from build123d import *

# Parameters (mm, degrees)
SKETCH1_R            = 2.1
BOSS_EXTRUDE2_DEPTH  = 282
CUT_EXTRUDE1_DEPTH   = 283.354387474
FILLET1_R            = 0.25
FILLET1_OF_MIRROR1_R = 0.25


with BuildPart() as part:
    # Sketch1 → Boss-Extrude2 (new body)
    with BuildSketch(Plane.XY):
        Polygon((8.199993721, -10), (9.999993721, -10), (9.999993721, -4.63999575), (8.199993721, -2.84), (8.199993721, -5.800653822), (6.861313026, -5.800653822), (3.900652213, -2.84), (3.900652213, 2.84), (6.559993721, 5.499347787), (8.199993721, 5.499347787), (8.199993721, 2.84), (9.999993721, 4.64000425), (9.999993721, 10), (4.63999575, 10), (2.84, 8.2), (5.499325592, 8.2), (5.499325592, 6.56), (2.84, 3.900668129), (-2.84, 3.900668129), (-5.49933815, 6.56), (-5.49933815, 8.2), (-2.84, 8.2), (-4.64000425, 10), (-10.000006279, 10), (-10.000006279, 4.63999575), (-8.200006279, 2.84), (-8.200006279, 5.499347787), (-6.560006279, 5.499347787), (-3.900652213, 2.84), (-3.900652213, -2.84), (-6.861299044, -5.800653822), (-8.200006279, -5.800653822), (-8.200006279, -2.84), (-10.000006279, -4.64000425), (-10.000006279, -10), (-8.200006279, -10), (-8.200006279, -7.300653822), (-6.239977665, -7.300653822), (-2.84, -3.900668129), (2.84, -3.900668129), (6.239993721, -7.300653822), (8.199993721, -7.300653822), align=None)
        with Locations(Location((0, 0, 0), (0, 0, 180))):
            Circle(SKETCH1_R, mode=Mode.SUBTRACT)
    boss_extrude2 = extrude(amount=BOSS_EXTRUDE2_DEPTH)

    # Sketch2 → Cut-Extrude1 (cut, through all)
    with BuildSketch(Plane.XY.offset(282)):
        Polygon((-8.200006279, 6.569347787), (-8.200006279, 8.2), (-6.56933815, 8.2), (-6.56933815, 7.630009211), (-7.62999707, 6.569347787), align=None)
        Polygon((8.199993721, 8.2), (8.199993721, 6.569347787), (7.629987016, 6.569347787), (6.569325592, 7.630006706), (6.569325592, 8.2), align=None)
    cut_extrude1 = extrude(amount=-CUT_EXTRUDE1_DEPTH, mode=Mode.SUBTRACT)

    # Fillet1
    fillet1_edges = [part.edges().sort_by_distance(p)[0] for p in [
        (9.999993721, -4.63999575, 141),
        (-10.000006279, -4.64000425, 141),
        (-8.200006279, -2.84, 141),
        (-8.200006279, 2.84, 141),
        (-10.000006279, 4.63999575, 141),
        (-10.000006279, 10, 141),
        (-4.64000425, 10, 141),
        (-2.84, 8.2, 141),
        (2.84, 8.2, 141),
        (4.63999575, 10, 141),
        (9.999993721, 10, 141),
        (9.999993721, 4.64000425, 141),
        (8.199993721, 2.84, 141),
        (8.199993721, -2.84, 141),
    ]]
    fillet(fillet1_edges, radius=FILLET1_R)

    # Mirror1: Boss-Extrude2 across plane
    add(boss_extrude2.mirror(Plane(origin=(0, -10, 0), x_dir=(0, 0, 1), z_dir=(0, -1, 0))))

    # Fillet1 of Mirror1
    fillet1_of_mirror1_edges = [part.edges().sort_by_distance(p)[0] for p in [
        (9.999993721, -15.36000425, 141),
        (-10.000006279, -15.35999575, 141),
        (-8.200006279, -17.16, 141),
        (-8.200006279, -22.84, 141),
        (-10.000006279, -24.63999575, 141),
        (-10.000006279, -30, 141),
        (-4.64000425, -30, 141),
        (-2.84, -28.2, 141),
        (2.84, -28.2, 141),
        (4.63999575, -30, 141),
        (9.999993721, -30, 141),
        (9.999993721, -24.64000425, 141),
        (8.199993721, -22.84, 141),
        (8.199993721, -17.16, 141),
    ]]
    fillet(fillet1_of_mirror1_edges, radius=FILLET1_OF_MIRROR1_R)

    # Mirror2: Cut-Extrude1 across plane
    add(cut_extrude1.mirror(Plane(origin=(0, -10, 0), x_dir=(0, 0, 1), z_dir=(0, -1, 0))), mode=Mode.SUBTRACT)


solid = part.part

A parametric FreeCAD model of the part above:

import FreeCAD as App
import Part
import Sketcher
Q = App.Units.Quantity


def edges_at(feature, points):
    """Names of the edges that pass closest to the given points."""
    edges = feature.Shape.Edges
    near = lambda p: min(range(len(edges)), key=lambda i: edges[i].distToShape(Part.Vertex(*p))[0])
    return sorted({f"Edge{near(p) + 1}" for p in points})

doc = App.newDocument("Part")
body = doc.addObject("PartDesign::Body", "Body")

# Sketch on XY plane
sketch1 = body.newObject("Sketcher::SketchObject", "Sketch")
sketch1.AttachmentSupport = (doc.getObject("XY_Plane"), [""])
sketch1.MapMode = "FlatFace"
sketch1.addGeometry([
    Part.LineSegment(App.Vector(8.199994, -10, 0), App.Vector(9.999994, -10, 0)),  # 0
    Part.LineSegment(App.Vector(9.999994, -10, 0), App.Vector(9.999994, -4.639996, 0)),  # 1
    Part.LineSegment(App.Vector(9.999994, -4.639996, 0), App.Vector(8.199994, -2.84, 0)),  # 2
    Part.LineSegment(App.Vector(8.199994, -2.84, 0), App.Vector(8.199994, -5.800654, 0)),  # 3
    Part.LineSegment(App.Vector(8.199994, -5.800654, 0), App.Vector(6.861313, -5.800654, 0)),  # 4
    Part.LineSegment(App.Vector(6.861313, -5.800654, 0), App.Vector(3.900652, -2.84, 0)),  # 5
    Part.LineSegment(App.Vector(3.900652, -2.84, 0), App.Vector(3.900652, 2.84, 0)),  # 6
    Part.LineSegment(App.Vector(3.900652, 2.84, 0), App.Vector(6.559994, 5.499348, 0)),  # 7
    Part.LineSegment(App.Vector(6.559994, 5.499348, 0), App.Vector(8.199994, 5.499348, 0)),  # 8
    Part.LineSegment(App.Vector(8.199994, 5.499348, 0), App.Vector(8.199994, 2.84, 0)),  # 9
    Part.LineSegment(App.Vector(8.199994, 2.84, 0), App.Vector(9.999994, 4.640004, 0)),  # 10
    Part.LineSegment(App.Vector(9.999994, 4.640004, 0), App.Vector(9.999994, 10, 0)),  # 11
    Part.LineSegment(App.Vector(9.999994, 10, 0), App.Vector(4.639996, 10, 0)),  # 12
    Part.LineSegment(App.Vector(4.639996, 10, 0), App.Vector(2.84, 8.2, 0)),  # 13
    Part.LineSegment(App.Vector(2.84, 8.2, 0), App.Vector(5.499326, 8.2, 0)),  # 14
    Part.LineSegment(App.Vector(5.499326, 8.2, 0), App.Vector(5.499326, 6.56, 0)),  # 15
    Part.LineSegment(App.Vector(5.499326, 6.56, 0), App.Vector(2.84, 3.900668, 0)),  # 16
    Part.LineSegment(App.Vector(2.84, 3.900668, 0), App.Vector(-2.84, 3.900668, 0)),  # 17
    Part.LineSegment(App.Vector(-2.84, 3.900668, 0), App.Vector(-5.499338, 6.56, 0)),  # 18
    Part.LineSegment(App.Vector(-5.499338, 6.56, 0), App.Vector(-5.499338, 8.2, 0)),  # 19
    Part.LineSegment(App.Vector(-5.499338, 8.2, 0), App.Vector(-2.84, 8.2, 0)),  # 20
    Part.LineSegment(App.Vector(-2.84, 8.2, 0), App.Vector(-4.640004, 10, 0)),  # 21
    Part.LineSegment(App.Vector(-4.640004, 10, 0), App.Vector(-10.000006, 10, 0)),  # 22
    Part.LineSegment(App.Vector(-10.000006, 10, 0), App.Vector(-10.000006, 4.639996, 0)),  # 23
    Part.LineSegment(App.Vector(-10.000006, 4.639996, 0), App.Vector(-8.200006, 2.84, 0)),  # 24
    Part.LineSegment(App.Vector(-8.200006, 2.84, 0), App.Vector(-8.200006, 5.499348, 0)),  # 25
    Part.LineSegment(App.Vector(-8.200006, 5.499348, 0), App.Vector(-6.560006, 5.499348, 0)),  # 26
    Part.LineSegment(App.Vector(-6.560006, 5.499348, 0), App.Vector(-3.900652, 2.84, 0)),  # 27
    Part.LineSegment(App.Vector(-3.900652, 2.84, 0), App.Vector(-3.900652, -2.84, 0)),  # 28
    Part.LineSegment(App.Vector(-3.900652, -2.84, 0), App.Vector(-6.861299, -5.800654, 0)),  # 29
    Part.LineSegment(App.Vector(-6.861299, -5.800654, 0), App.Vector(-8.200006, -5.800654, 0)),  # 30
    Part.LineSegment(App.Vector(-8.200006, -5.800654, 0), App.Vector(-8.200006, -2.84, 0)),  # 31
    Part.LineSegment(App.Vector(-8.200006, -2.84, 0), App.Vector(-10.000006, -4.640004, 0)),  # 32
    Part.LineSegment(App.Vector(-10.000006, -4.640004, 0), App.Vector(-10.000006, -10, 0)),  # 33
    Part.LineSegment(App.Vector(-10.000006, -10, 0), App.Vector(-8.200006, -10, 0)),  # 34
    Part.LineSegment(App.Vector(-8.200006, -10, 0), App.Vector(-8.200006, -7.300654, 0)),  # 35
    Part.LineSegment(App.Vector(-8.200006, -7.300654, 0), App.Vector(-6.239978, -7.300654, 0)),  # 36
    Part.LineSegment(App.Vector(-6.239978, -7.300654, 0), App.Vector(-2.84, -3.900668, 0)),  # 37
    Part.LineSegment(App.Vector(-2.84, -3.900668, 0), App.Vector(2.84, -3.900668, 0)),  # 38
    Part.LineSegment(App.Vector(2.84, -3.900668, 0), App.Vector(6.239994, -7.300654, 0)),  # 39
    Part.LineSegment(App.Vector(6.239994, -7.300654, 0), App.Vector(8.199994, -7.300654, 0)),  # 40
    Part.LineSegment(App.Vector(8.199994, -7.300654, 0), App.Vector(8.199994, -10, 0)),  # 41
    Part.Circle(App.Vector(0, 0, 0), App.Vector(0, 0, 1), 2.1),  # 42
], False)
sketch1.addConstraint([
    Sketcher.Constraint("Coincident", 0, 2, 1, 1),
    Sketcher.Constraint("Coincident", 1, 2, 2, 1),
    Sketcher.Constraint("Coincident", 2, 2, 3, 1),
    Sketcher.Constraint("Coincident", 3, 2, 4, 1),
    Sketcher.Constraint("Coincident", 4, 2, 5, 1),
    Sketcher.Constraint("Coincident", 5, 2, 6, 1),
    Sketcher.Constraint("Coincident", 6, 2, 7, 1),
    Sketcher.Constraint("Coincident", 7, 2, 8, 1),
    Sketcher.Constraint("Coincident", 8, 2, 9, 1),
    Sketcher.Constraint("Coincident", 9, 2, 10, 1),
    Sketcher.Constraint("Coincident", 10, 2, 11, 1),
    Sketcher.Constraint("Coincident", 11, 2, 12, 1),
    Sketcher.Constraint("Coincident", 12, 2, 13, 1),
    Sketcher.Constraint("Coincident", 13, 2, 14, 1),
    Sketcher.Constraint("Coincident", 14, 2, 15, 1),
    Sketcher.Constraint("Coincident", 15, 2, 16, 1),
    Sketcher.Constraint("Coincident", 16, 2, 17, 1),
    Sketcher.Constraint("Coincident", 17, 2, 18, 1),
    Sketcher.Constraint("Coincident", 18, 2, 19, 1),
    Sketcher.Constraint("Coincident", 19, 2, 20, 1),
    Sketcher.Constraint("Coincident", 20, 2, 21, 1),
    Sketcher.Constraint("Coincident", 21, 2, 22, 1),
    Sketcher.Constraint("Coincident", 22, 2, 23, 1),
    Sketcher.Constraint("Coincident", 23, 2, 24, 1),
    Sketcher.Constraint("Coincident", 24, 2, 25, 1),
    Sketcher.Constraint("Coincident", 25, 2, 26, 1),
    Sketcher.Constraint("Coincident", 26, 2, 27, 1),
    Sketcher.Constraint("Coincident", 27, 2, 28, 1),
    Sketcher.Constraint("Coincident", 28, 2, 29, 1),
    Sketcher.Constraint("Coincident", 29, 2, 30, 1),
    Sketcher.Constraint("Coincident", 30, 2, 31, 1),
    Sketcher.Constraint("Coincident", 31, 2, 32, 1),
    Sketcher.Constraint("Coincident", 32, 2, 33, 1),
    Sketcher.Constraint("Coincident", 33, 2, 34, 1),
    Sketcher.Constraint("Coincident", 34, 2, 35, 1),
    Sketcher.Constraint("Coincident", 35, 2, 36, 1),
    Sketcher.Constraint("Coincident", 36, 2, 37, 1),
    Sketcher.Constraint("Coincident", 37, 2, 38, 1),
    Sketcher.Constraint("Coincident", 38, 2, 39, 1),
    Sketcher.Constraint("Coincident", 39, 2, 40, 1),
    Sketcher.Constraint("Coincident", 40, 2, 41, 1),
    Sketcher.Constraint("Coincident", 41, 2, 0, 1),
    Sketcher.Constraint("Horizontal", 0),
    Sketcher.Constraint("Vertical", 1),
    Sketcher.Constraint("Vertical", 3),
    Sketcher.Constraint("Horizontal", 4),
    Sketcher.Constraint("Vertical", 6),
    Sketcher.Constraint("Horizontal", 8),
    Sketcher.Constraint("Vertical", 9),
    Sketcher.Constraint("Vertical", 11),
    Sketcher.Constraint("Horizontal", 12),
    Sketcher.Constraint("Horizontal", 14),
    Sketcher.Constraint("Vertical", 15),
    Sketcher.Constraint("Horizontal", 17),
    Sketcher.Constraint("Vertical", 19),
    Sketcher.Constraint("Horizontal", 20),
    Sketcher.Constraint("Horizontal", 22),
    Sketcher.Constraint("Vertical", 23),
    Sketcher.Constraint("Vertical", 25),
    Sketcher.Constraint("Horizontal", 26),
    Sketcher.Constraint("Vertical", 28),
    Sketcher.Constraint("Horizontal", 30),
    Sketcher.Constraint("Vertical", 31),
    Sketcher.Constraint("Vertical", 33),
    Sketcher.Constraint("Horizontal", 34),
    Sketcher.Constraint("Vertical", 35),
    Sketcher.Constraint("Horizontal", 36),
    Sketcher.Constraint("Horizontal", 38),
    Sketcher.Constraint("Horizontal", 40),
    Sketcher.Constraint("Vertical", 41),
    Sketcher.Constraint("Coincident", 42, 3, -1, 1),
    Sketcher.Constraint("Diameter", 42, Q("4.2 mm")),
    Sketcher.Constraint("DistanceX", 0, 1, 0, 2, Q("1.8 mm")),
    Sketcher.Constraint("DistanceX", 34, 1, 34, 2, Q("1.8 mm")),
    Sketcher.Constraint("DistanceY", 0, 2, -1, 1, Q("10 mm")),
    Sketcher.Constraint("DistanceY", -1, 1, 11, 2, Q("10 mm")),
    Sketcher.Constraint("DistanceY", -1, 1, 21, 2, Q("10 mm")),
    Sketcher.Constraint("DistanceY", 33, 2, -1, 1, Q("10 mm")),
    Sketcher.Constraint("DistanceX", 8, 1, 8, 2, Q("1.64 mm")),
    Sketcher.Constraint("DistanceX", 17, 2, 17, 1, Q("5.68 mm")),
    Sketcher.Constraint("DistanceX", 26, 1, 26, 2, Q("1.64 mm")),
    Sketcher.Constraint("DistanceX", 38, 1, 38, 2, Q("5.68 mm")),
    Sketcher.Constraint("DistanceX", 40, 1, 40, 2, Q("1.96 mm")),
    Sketcher.Constraint("DistanceY", 6, 1, 6, 2, Q("5.68 mm")),
    Sketcher.Constraint("DistanceY", 15, 2, 15, 1, Q("1.64 mm")),
    Sketcher.Constraint("DistanceY", 19, 1, 19, 2, Q("1.64 mm")),
    Sketcher.Constraint("DistanceY", 28, 2, 28, 1, Q("5.68 mm")),
    Sketcher.Constraint("DistanceY", -1, 1, 13, 2, Q("8.2 mm")),
    Sketcher.Constraint("DistanceY", -1, 1, 19, 2, Q("8.2 mm")),
    Sketcher.Constraint("DistanceX", 2, 2, 1, 2, Q("1.8 mm")),
    Sketcher.Constraint("DistanceX", 8, 2, 10, 2, Q("1.8 mm")),
    Sketcher.Constraint("DistanceX", 2, 2, 10, 2, Q("1.8 mm")),
    Sketcher.Constraint("DistanceX", 23, 2, 24, 2, Q("1.8 mm")),
    Sketcher.Constraint("DistanceX", 32, 2, 30, 2, Q("1.8 mm")),
    Sketcher.Constraint("DistanceX", 32, 2, 24, 2, Q("1.8 mm")),
    Sketcher.Constraint("DistanceY", 35, 2, 30, 2, Q("1.5 mm")),
    Sketcher.Constraint("DistanceY", 39, 2, 4, 2, Q("1.5 mm")),
    Sketcher.Constraint("DistanceY", 2, 2, -1, 1, Q("2.84 mm")),
    Sketcher.Constraint("DistanceY", 5, 2, -1, 1, Q("2.84 mm")),
    Sketcher.Constraint("DistanceY", -1, 1, 9, 2, Q("2.84 mm")),
    Sketcher.Constraint("DistanceX", -1, 1, 13, 2, Q("2.84 mm")),
    Sketcher.Constraint("DistanceX", -1, 1, 16, 2, Q("2.84 mm")),
    Sketcher.Constraint("DistanceX", 20, 2, -1, 1, Q("2.84 mm")),
    Sketcher.Constraint("DistanceY", -1, 1, 24, 2, Q("2.84 mm")),
    Sketcher.Constraint("DistanceY", -1, 1, 27, 2, Q("2.84 mm")),
    Sketcher.Constraint("DistanceY", 31, 2, -1, 1, Q("2.84 mm")),
    Sketcher.Constraint("DistanceX", 37, 2, -1, 1, Q("2.84 mm")),
    Sketcher.Constraint("Distance", 5, Q("4.187002 mm")),
    Sketcher.Constraint("Distance", 37, Q("4.8083 mm")),
    Sketcher.Constraint("DistanceX", 4, 2, 4, 1, Q("1.338681 mm")),
    Sketcher.Constraint("DistanceX", 20, 1, 20, 2, Q("2.659338 mm")),
    Sketcher.Constraint("DistanceX", 36, 1, 36, 2, Q("1.960029 mm")),
    Sketcher.Constraint("DistanceX", 29, 2, -1, 1, Q("6.861299 mm")),
    Sketcher.Constraint("Distance", 2, Q("2.545581 mm")),
    Sketcher.Constraint("Distance", 7, Q("3.760881 mm")),
    Sketcher.Constraint("Distance", 13, Q("2.545581 mm")),
    Sketcher.Constraint("Distance", 16, Q("3.760859 mm")),
    Sketcher.Constraint("Distance", 24, Q("2.545581 mm")),
    Sketcher.Constraint("Distance", 27, Q("3.76089 mm")),
    Sketcher.Constraint("Distance", 29, Q("4.186992 mm")),
    Sketcher.Constraint("Distance", 39, Q("4.808312 mm")),
    Sketcher.Constraint("DistanceX", 12, 2, 12, 1, Q("5.359998 mm")),
    Sketcher.Constraint("DistanceX", 14, 1, 14, 2, Q("2.659326 mm")),
    Sketcher.Constraint("DistanceX", 22, 2, 22, 1, Q("5.360002 mm")),
    Sketcher.Constraint("DistanceX", 30, 2, 30, 1, Q("1.338707 mm")),
    Sketcher.Constraint("DistanceY", 3, 2, 3, 1, Q("2.960654 mm")),
    Sketcher.Constraint("DistanceY", 11, 1, 11, 2, Q("5.359996 mm")),
    Sketcher.Constraint("DistanceY", 33, 2, 33, 1, Q("5.359996 mm")),
])
pad1 = body.newObject("PartDesign::Pad", "Pad")
pad1.Profile = sketch1
pad1.Length = 282

# Sketch on XY plane
sketch2 = body.newObject("Sketcher::SketchObject", "Sketch001")
sketch2.AttachmentSupport = (doc.getObject("XY_Plane"), [""])
sketch2.MapMode = "FlatFace"
sketch2.AttachmentOffset = App.Placement(App.Vector(0, 0, 282), App.Rotation())
sketch2.addGeometry([
    Part.LineSegment(App.Vector(-8.2, 8.2, 0), App.Vector(-8.2, 6.6, 0)),  # 0
    Part.LineSegment(App.Vector(-8.2, 6.6, 0), App.Vector(-7.6, 6.6, 0)),  # 1
    Part.LineSegment(App.Vector(-7.6, 6.6, 0), App.Vector(-6.6, 7.6, 0)),  # 2
    Part.LineSegment(App.Vector(-6.6, 7.6, 0), App.Vector(-6.6, 8.2, 0)),  # 3
    Part.LineSegment(App.Vector(-6.6, 8.2, 0), App.Vector(-8.2, 8.2, 0)),  # 4
    Part.LineSegment(App.Vector(8.2, 6.6, 0), App.Vector(8.2, 8.2, 0)),  # 5
    Part.LineSegment(App.Vector(8.2, 8.2, 0), App.Vector(6.6, 8.2, 0)),  # 6
    Part.LineSegment(App.Vector(6.6, 8.2, 0), App.Vector(6.6, 7.6, 0)),  # 7
    Part.LineSegment(App.Vector(6.6, 7.6, 0), App.Vector(7.6, 6.6, 0)),  # 8
    Part.LineSegment(App.Vector(7.6, 6.6, 0), App.Vector(8.2, 6.6, 0)),  # 9
], False)
sketch2.addConstraint([
    Sketcher.Constraint("Coincident", 0, 2, 1, 1),
    Sketcher.Constraint("Coincident", 1, 2, 2, 1),
    Sketcher.Constraint("Coincident", 2, 2, 3, 1),
    Sketcher.Constraint("Coincident", 3, 2, 4, 1),
    Sketcher.Constraint("Coincident", 4, 2, 0, 1),
    Sketcher.Constraint("Coincident", 5, 2, 6, 1),
    Sketcher.Constraint("Coincident", 6, 2, 7, 1),
    Sketcher.Constraint("Coincident", 7, 2, 8, 1),
    Sketcher.Constraint("Coincident", 8, 2, 9, 1),
    Sketcher.Constraint("Coincident", 9, 2, 5, 1),
    Sketcher.Constraint("Vertical", 0),
    Sketcher.Constraint("Horizontal", 1),
    Sketcher.Constraint("Vertical", 3),
    Sketcher.Constraint("Horizontal", 4),
    Sketcher.Constraint("Vertical", 5),
    Sketcher.Constraint("Horizontal", 6),
    Sketcher.Constraint("Vertical", 7),
    Sketcher.Constraint("Horizontal", 9),
    Sketcher.Constraint("Perpendicular", 2, 8),
    Sketcher.Constraint("Horizontal", 4, 2, 5, 2),
    Sketcher.Constraint("Horizontal", 1, 2, 8, 2),
    Sketcher.Constraint("Equal", 4, 6),
    Sketcher.Constraint("Equal", 2, 8),
    Sketcher.Constraint("Distance", 2, Q("1.5 mm")),
    Sketcher.Constraint("DistanceY", -1, 1, 3, 2, Q("8.2 mm")),
    Sketcher.Constraint("DistanceX", 4, 2, 5, 2, Q("16.4 mm")),
    Sketcher.Constraint("DistanceX", 1, 1, 1, 2, Q("0.570009 mm")),
    Sketcher.Constraint("DistanceX", 4, 2, 4, 1, Q("1.630668 mm")),
    Sketcher.Constraint("DistanceY", 3, 1, 3, 2, Q("0.569991 mm")),
    Sketcher.Constraint("DistanceX", 2, 2, -1, 1, Q("6.569338 mm")),
])
pocket1 = body.newObject("PartDesign::Pocket", "Pocket")
pocket1.Profile = sketch2
pocket1.Type = "ThroughAll"
doc.recompute()

fillet = body.newObject("PartDesign::Fillet", "Fillet")
fillet.Base = (pocket1, edges_at(pocket1, [
    (10, -4.64, 141),
    (-10, -4.64, 141),
    (-8.2, -2.84, 141),
    (-8.2, 2.84, 141),
    (-10, 4.64, 141),
    (-10, 10, 141),
    (-4.64, 10, 141),
    (-2.84, 8.2, 141),
    (2.84, 8.2, 141),
    (4.64, 10, 141),
    (10, 10, 141),
    (10, 4.64, 141),
    (8.2, 2.84, 141),
    (8.2, -2.84, 141),
]))
fillet.Radius = 0.25
doc.recompute()

datumplane = body.newObject("PartDesign::Plane", "DatumPlane")
datumplane.AttachmentSupport = (doc.getObject("XZ_Plane"), [""])
datumplane.MapMode = "FlatFace"
datumplane.AttachmentOffset = App.Placement(App.Vector(0, 0, 10), App.Rotation())
mirrored = body.newObject("PartDesign::Mirrored", "Mirrored")
mirrored.Originals = [pad1]
mirrored.MirrorPlane = (datumplane, [""])
body.Tip = mirrored
doc.recompute()

fillet2 = body.newObject("PartDesign::Fillet", "Fillet001")
fillet2.Base = (mirrored, edges_at(mirrored, [
    (10, -15.36, 141),
    (-10, -15.36, 141),
    (-8.2, -17.16, 141),
    (-8.2, -22.84, 141),
    (-10, -24.64, 141),
    (-10, -30, 141),
    (-4.64, -30, 141),
    (-2.84, -28.2, 141),
    (2.84, -28.2, 141),
    (4.64, -30, 141),
    (10, -30, 141),
    (10, -24.64, 141),
    (8.2, -22.84, 141),
    (8.2, -17.16, 141),
]))
fillet2.Radius = 0.25
doc.recompute()

datumplane2 = body.newObject("PartDesign::Plane", "DatumPlane001")
datumplane2.AttachmentSupport = (doc.getObject("XZ_Plane"), [""])
datumplane2.MapMode = "FlatFace"
datumplane2.AttachmentOffset = App.Placement(App.Vector(0, 0, 10), App.Rotation())
mirrored2 = body.newObject("PartDesign::Mirrored", "Mirrored001")
mirrored2.Originals = [pocket1]
mirrored2.MirrorPlane = (datumplane2, [""])
body.Tip = mirrored2

doc.recompute()
